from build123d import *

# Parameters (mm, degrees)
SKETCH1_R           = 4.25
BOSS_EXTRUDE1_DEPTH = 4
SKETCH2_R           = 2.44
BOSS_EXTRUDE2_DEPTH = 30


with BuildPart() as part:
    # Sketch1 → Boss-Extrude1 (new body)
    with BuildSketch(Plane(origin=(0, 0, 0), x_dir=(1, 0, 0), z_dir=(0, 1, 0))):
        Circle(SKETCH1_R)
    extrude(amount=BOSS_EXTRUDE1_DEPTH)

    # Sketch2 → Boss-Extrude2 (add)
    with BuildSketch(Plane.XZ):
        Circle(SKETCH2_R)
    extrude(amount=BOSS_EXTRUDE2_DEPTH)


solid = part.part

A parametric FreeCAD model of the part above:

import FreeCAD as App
import Part
import Sketcher

V = App.Vector

doc = App.newDocument("Part")
body = doc.addObject("PartDesign::Body", "Body")

# Sketch on XZ plane
sketch1 = body.newObject("Sketcher::SketchObject", "Sketch")
sketch1.AttachmentSupport = (doc.getObject("XZ_Plane"), [""])
sketch1.MapMode = "FlatFace"
sketch1.addGeometry(Part.Circle(V(0, 0, 0), V(0, 0, 1), 4.2), False)
sketch1.addConstraint([
    Sketcher.Constraint("Coincident", 0, 3, -1, 1),
    Sketcher.Constraint("Diameter", 0, 8.5),
])
pad1 = body.newObject("PartDesign::Pad", "Pad")
pad1.Profile = sketch1
pad1.Length = 4
pad1.Reversed = True

# Sketch on XZ plane
sketch2 = body.newObject("Sketcher::SketchObject", "Sketch001")
sketch2.AttachmentSupport = (doc.getObject("XZ_Plane"), [""])
sketch2.MapMode = "FlatFace"
sketch2.addGeometry(Part.Circle(V(0, 0, 0), V(0, 0, 1), 2.4), False)
sketch2.addConstraint([
    Sketcher.Constraint("Coincident", 0, 3, -1, 1),
    Sketcher.Constraint("Diameter", 0, 4.88),
])
pad2 = body.newObject("PartDesign::Pad", "Pad001")
pad2.Profile = sketch2
pad2.Length = 30

doc.recompute()
